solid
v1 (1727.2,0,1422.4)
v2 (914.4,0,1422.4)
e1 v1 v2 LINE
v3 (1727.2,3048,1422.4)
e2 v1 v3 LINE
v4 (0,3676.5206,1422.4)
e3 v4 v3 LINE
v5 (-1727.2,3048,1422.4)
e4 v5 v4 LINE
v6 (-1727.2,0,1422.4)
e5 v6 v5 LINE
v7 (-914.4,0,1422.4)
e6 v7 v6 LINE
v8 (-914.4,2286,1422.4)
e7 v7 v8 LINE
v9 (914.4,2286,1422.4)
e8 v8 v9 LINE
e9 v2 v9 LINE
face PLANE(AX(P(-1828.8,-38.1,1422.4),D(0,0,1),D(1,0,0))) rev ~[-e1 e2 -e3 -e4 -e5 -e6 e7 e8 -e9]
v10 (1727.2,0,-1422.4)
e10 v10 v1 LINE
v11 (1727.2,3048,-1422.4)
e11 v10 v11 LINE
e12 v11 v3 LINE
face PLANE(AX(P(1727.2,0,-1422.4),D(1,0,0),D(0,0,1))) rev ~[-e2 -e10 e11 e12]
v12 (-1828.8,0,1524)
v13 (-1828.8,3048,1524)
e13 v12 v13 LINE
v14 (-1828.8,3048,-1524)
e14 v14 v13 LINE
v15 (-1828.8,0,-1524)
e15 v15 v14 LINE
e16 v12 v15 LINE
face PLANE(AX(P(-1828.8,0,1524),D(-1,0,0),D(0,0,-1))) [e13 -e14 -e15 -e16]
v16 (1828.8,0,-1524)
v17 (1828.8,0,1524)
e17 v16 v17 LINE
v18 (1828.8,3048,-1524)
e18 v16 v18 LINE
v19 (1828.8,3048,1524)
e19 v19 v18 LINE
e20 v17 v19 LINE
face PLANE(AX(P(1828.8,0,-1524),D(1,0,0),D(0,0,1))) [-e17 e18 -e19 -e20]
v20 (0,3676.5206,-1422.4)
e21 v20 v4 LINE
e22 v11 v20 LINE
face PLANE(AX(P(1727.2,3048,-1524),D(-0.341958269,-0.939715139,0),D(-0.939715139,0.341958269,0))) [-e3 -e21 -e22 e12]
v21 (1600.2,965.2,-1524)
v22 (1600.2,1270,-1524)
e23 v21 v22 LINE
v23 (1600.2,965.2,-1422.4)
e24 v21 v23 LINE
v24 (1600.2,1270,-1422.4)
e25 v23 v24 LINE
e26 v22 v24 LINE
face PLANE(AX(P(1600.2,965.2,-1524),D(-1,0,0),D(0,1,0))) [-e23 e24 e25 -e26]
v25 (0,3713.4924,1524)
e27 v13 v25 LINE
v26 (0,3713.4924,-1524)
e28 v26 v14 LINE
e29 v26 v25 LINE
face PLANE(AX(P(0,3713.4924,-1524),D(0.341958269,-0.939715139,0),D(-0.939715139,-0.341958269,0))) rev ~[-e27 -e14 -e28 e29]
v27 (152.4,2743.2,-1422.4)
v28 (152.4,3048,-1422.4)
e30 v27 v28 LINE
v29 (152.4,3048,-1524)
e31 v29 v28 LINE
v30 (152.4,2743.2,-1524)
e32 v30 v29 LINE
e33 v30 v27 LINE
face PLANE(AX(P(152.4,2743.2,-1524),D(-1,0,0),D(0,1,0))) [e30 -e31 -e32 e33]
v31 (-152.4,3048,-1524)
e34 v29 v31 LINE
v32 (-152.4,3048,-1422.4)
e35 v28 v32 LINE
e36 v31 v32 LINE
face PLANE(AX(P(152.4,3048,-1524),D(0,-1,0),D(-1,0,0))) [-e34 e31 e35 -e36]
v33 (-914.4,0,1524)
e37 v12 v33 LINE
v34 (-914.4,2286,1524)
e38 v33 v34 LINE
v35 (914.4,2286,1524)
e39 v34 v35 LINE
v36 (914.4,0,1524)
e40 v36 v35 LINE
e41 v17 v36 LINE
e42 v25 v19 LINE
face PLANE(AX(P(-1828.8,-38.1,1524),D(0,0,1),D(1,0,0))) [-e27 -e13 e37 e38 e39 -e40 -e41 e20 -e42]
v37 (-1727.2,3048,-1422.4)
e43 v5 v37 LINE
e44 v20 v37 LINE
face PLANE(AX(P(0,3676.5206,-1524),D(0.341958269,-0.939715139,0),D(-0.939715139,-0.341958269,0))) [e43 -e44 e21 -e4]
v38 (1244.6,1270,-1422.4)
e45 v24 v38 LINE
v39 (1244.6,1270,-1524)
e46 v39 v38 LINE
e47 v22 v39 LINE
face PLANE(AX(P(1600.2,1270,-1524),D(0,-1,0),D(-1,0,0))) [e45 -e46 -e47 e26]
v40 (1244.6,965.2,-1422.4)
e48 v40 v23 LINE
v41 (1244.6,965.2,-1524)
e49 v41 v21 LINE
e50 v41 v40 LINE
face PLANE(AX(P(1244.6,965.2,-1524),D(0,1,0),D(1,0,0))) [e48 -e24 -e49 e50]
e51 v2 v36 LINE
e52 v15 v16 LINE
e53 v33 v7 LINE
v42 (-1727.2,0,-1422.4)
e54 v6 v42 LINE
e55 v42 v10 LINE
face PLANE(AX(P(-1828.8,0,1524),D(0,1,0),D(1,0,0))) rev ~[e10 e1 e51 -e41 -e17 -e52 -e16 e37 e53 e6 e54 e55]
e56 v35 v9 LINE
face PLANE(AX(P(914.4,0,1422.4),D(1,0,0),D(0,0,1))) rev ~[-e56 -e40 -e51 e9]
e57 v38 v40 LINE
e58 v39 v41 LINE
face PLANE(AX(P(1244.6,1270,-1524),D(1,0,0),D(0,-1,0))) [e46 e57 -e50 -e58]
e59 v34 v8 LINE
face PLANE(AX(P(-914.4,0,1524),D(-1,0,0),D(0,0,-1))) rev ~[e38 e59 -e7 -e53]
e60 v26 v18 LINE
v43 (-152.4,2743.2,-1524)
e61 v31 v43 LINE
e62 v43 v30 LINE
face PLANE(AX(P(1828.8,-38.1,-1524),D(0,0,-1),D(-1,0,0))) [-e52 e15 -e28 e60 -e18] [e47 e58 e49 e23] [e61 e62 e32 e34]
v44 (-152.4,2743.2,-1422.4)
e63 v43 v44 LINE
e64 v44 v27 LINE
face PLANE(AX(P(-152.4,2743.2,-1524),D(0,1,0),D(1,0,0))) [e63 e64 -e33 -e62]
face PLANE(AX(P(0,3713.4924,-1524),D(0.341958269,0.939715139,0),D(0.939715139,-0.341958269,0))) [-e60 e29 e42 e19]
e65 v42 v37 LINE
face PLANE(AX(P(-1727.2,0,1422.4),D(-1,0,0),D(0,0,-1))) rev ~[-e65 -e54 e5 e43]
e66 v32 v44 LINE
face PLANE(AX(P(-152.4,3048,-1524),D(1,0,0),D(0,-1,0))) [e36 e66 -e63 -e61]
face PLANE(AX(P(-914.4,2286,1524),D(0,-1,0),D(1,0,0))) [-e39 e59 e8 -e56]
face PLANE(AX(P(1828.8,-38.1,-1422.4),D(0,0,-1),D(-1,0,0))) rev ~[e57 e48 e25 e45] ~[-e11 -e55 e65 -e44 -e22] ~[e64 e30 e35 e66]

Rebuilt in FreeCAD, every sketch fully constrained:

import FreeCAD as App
import Part
import Sketcher
from FreeCAD import Vector
Q = App.Units.Quantity

doc = App.newDocument("Part")
params = doc.addObject("Spreadsheet::Sheet", "Params")
for row, (alias, value) in enumerate([
    ("sketch1_width", "36 in"),
    ("sketch1_height", "4 in"),
    ("sketch1_height2", "120 in"),
    ("pad1_length", "120 in"),
    ("sketch2_width", "72 in"),
    ("sketch2_height", "30 in"),
    ("pad2_length", "4 in"),
    ("sketch3_width", "144 in"),
    ("pad3_length", "4 in"),
    ("sketch4_width", "144 in"),
    ("pad4_length", "4 in"),
    ("sketch5_width", "4 in"),
    ("pad5_length", "120 in"),
    ("sketch6_width", "14 in"),
    ("sketch6_height", "12 in"),
    ("pocket1_length", "4 in"),
    ("sketch7_width", "12 in"),
    ("pocket2_length", "4 in"),
], start=1):
    params.set(f"A{row}", alias)
    params.set(f"B{row}", "=" + value)
    params.setAlias(f"B{row}", alias)

body = doc.addObject("PartDesign::Body", "Body")

# Sketch on XZ plane
sketch1 = doc.addObject("Sketcher::SketchObject", "Sketch")
body.addObject(sketch1)
sketch1.AttachmentSupport = (doc.XZ_Plane, [""])
sketch1.MapMode = "FlatFace"
sketch1.addGeometry([
    Part.LineSegment(Vector(-1829, -1524, 0), Vector(-1829, 1524, 0)),  # 0
    Part.LineSegment(Vector(-1829, 1524, 0), Vector(-914, 1524, 0)),  # 1
    Part.LineSegment(Vector(-914, 1524, 0), Vector(-914, 1422, 0)),  # 2
    Part.LineSegment(Vector(-914, 1422, 0), Vector(-1727, 1422, 0)),  # 3
    Part.LineSegment(Vector(-1727, 1422, 0), Vector(-1727, -1422, 0)),  # 4
    Part.LineSegment(Vector(-1727, -1422, 0), Vector(1727, -1422, 0)),  # 5
    Part.LineSegment(Vector(1727, -1422, 0), Vector(1727, 1422, 0)),  # 6
    Part.LineSegment(Vector(1727, 1422, 0), Vector(914, 1422, 0)),  # 7
    Part.LineSegment(Vector(914, 1422, 0), Vector(914, 1524, 0)),  # 8
    Part.LineSegment(Vector(914, 1524, 0), Vector(1829, 1524, 0)),  # 9
    Part.LineSegment(Vector(1829, 1524, 0), Vector(1829, -1524, 0)),  # 10
    Part.LineSegment(Vector(1829, -1524, 0), Vector(-1829, -1524, 0)),  # 11
], False)
sketch1.addConstraint([
    Sketcher.Constraint("Coincident", 0, 2, 1, 1),
    Sketcher.Constraint("Coincident", 1, 2, 2, 1),
    Sketcher.Constraint("Coincident", 2, 2, 3, 1),
    Sketcher.Constraint("Coincident", 3, 2, 4, 1),
    Sketcher.Constraint("Coincident", 4, 2, 5, 1),
    Sketcher.Constraint("Coincident", 5, 2, 6, 1),
    Sketcher.Constraint("Coincident", 6, 2, 7, 1),
    Sketcher.Constraint("Coincident", 7, 2, 8, 1),
    Sketcher.Constraint("Coincident", 8, 2, 9, 1),
    Sketcher.Constraint("Coincident", 9, 2, 10, 1),
    Sketcher.Constraint("Coincident", 10, 2, 11, 1),
    Sketcher.Constraint("Coincident", 11, 2, 0, 1),
    Sketcher.Constraint("Vertical", 0),
    Sketcher.Constraint("Horizontal", 1),
    Sketcher.Constraint("Vertical", 2),
    Sketcher.Constraint("Horizontal", 3),
    Sketcher.Constraint("Vertical", 4),
    Sketcher.Constraint("Horizontal", 5),
    Sketcher.Constraint("Vertical", 6),
    Sketcher.Constraint("Horizontal", 7),
    Sketcher.Constraint("Vertical", 8),
    Sketcher.Constraint("Horizontal", 9),
    Sketcher.Constraint("Vertical", 10),
    Sketcher.Constraint("Horizontal", 11),
    Sketcher.Constraint("Symmetric", 3, 2, 5, 2, -1, 1),
    Sketcher.Constraint("Symmetric", 0, 2, 10, 2, -1, 1),
    Sketcher.Constraint("Symmetric", 2, 2, 7, 2, -2),
    Sketcher.Constraint("Horizontal", 1, 2, 8, 2),
    Sketcher.Constraint("DistanceX", 1, 1, 1, 2, Q("36 in")),
    Sketcher.Constraint("DistanceY", 2, 2, 2, 1, Q("4 in")),
    Sketcher.Constraint("DistanceX", 1, 2, -1, 1, Q("36 in")),
    Sketcher.Constraint("DistanceX", 0, 2, 3, 2, Q("4 in")),
    Sketcher.Constraint("DistanceY", 0, 1, 0, 2, Q("120 in")),
])
sketch1.setExpression("Constraints[28]", "Params.sketch1_width")
sketch1.setExpression("Constraints[29]", "Params.sketch1_height")
sketch1.setExpression("Constraints[32]", "Params.sketch1_height2")
pad1 = doc.addObject("PartDesign::Pad", "Pad")
body.addObject(pad1)
pad1.Profile = sketch1
pad1.setExpression("Length", "Params.pad1_length")
pad1.Reversed = True

# Sketch on XY plane
sketch2 = doc.addObject("Sketcher::SketchObject", "Sketch001")
body.addObject(sketch2)
sketch2.AttachmentSupport = (doc.XY_Plane, [""])
sketch2.MapMode = "FlatFace"
sketch2.AttachmentOffset = App.Placement(Vector(0, 0, 60 * 25.4), App.Rotation())
sketch2.addGeometry([
    Part.LineSegment(Vector(-914, 3048, 0), Vector(-914, 2286, 0)),
    Part.LineSegment(Vector(-914, 2286, 0), Vector(914, 2286, 0)),
    Part.LineSegment(Vector(914, 2286, 0), Vector(914, 3048, 0)),
    Part.LineSegment(Vector(914, 3048, 0), Vector(-914, 3048, 0)),
], False)
sketch2.addConstraint([
    Sketcher.Constraint("Coincident", 0, 2, 1, 1),
    Sketcher.Constraint("Coincident", 1, 2, 2, 1),
    Sketcher.Constraint("Coincident", 2, 2, 3, 1),
    Sketcher.Constraint("Coincident", 3, 2, 0, 1),
    Sketcher.Constraint("Vertical", 0),
    Sketcher.Constraint("Horizontal", 1),
    Sketcher.Constraint("Vertical", 2),
    Sketcher.Constraint("Horizontal", 3),
    Sketcher.Constraint("DistanceY", -1, 1, 0, 2, Q("90 in")),
    Sketcher.Constraint("DistanceX", 1, 1, 1, 2, Q("72 in")),
    Sketcher.Constraint("DistanceY", 0, 2, 0, 1, Q("30 in")),
    Sketcher.Constraint("DistanceX", 0, 2, -1, 1, Q("36 in")),
])
sketch2.setExpression("Constraints[9]", "Params.sketch2_width")
sketch2.setExpression("Constraints[10]", "Params.sketch2_height")
pad2 = doc.addObject("PartDesign::Pad", "Pad001")
body.addObject(pad2)
pad2.Profile = sketch2
pad2.setExpression("Length", "Params.pad2_length")
pad2.Reversed = True

# Sketch on XY plane
sketch3 = doc.addObject("Sketcher::SketchObject", "Sketch002")
body.addObject(sketch3)
sketch3.AttachmentSupport = (doc.XY_Plane, [""])
sketch3.MapMode = "FlatFace"
sketch3.AttachmentOffset = App.Placement(Vector(0, 0, 60 * 25.4), App.Rotation())
sketch3.addGeometry([
    Part.LineSegment(Vector(-1829, 3048, 0), Vector(1829, 3048, 0)),
    Part.LineSegment(Vector(1829, 3048, 0), Vector(0, 3713, 0)),
    Part.LineSegment(Vector(0, 3713, 0), Vector(-1829, 3048, 0)),
], False)
sketch3.addConstraint([
    Sketcher.Constraint("Coincident", 0, 2, 1, 1),
    Sketcher.Constraint("Coincident", 1, 2, 2, 1),
    Sketcher.Constraint("Coincident", 2, 2, 0, 1),
    Sketcher.Constraint("Horizontal", 0),
    Sketcher.Constraint("PointOnObject", 1, 2, -2),
    Sketcher.Constraint("Equal", 1, 2),
    Sketcher.Constraint("DistanceX", 0, 1, 0, 2, Q("144 in")),
    Sketcher.Constraint("DistanceY", -1, 1, 0, 2, Q("120 in")),
    Sketcher.Constraint("DistanceY", -1, 1, 1, 2, Q("146.2005 in")),
])
sketch3.setExpression("Constraints[6]", "Params.sketch3_width")
pad3 = doc.addObject("PartDesign::Pad", "Pad002")
body.addObject(pad3)
pad3.Profile = sketch3
pad3.setExpression("Length", "Params.pad3_length")
pad3.Reversed = True

# Sketch on XY plane
sketch4 = doc.addObject("Sketcher::SketchObject", "Sketch003")
body.addObject(sketch4)
sketch4.AttachmentSupport = (doc.XY_Plane, [""])
sketch4.MapMode = "FlatFace"
sketch4.AttachmentOffset = App.Placement(Vector(0, 0, -60 * 25.4), App.Rotation())
sketch4.addGeometry([
    Part.LineSegment(Vector(1829, 3048, 0), Vector(-1829, 3048, 0)),
    Part.LineSegment(Vector(-1829, 3048, 0), Vector(0, 3713, 0)),
    Part.LineSegment(Vector(0, 3713, 0), Vector(1829, 3048, 0)),
], False)
sketch4.addConstraint([
    Sketcher.Constraint("Coincident", 0, 2, 1, 1),
    Sketcher.Constraint("Coincident", 1, 2, 2, 1),
    Sketcher.Constraint("Coincident", 2, 2, 0, 1),
    Sketcher.Constraint("Horizontal", 0),
    Sketcher.Constraint("PointOnObject", 1, 2, -2),
    Sketcher.Constraint("Equal", 1, 2),
    Sketcher.Constraint("DistanceX", 0, 2, 0, 1, Q("144 in")),
    Sketcher.Constraint("DistanceY", -1, 1, 0, 2, Q("120 in")),
    Sketcher.Constraint("DistanceY", -1, 1, 1, 2, Q("146.2005 in")),
])
sketch4.setExpression("Constraints[6]", "Params.sketch4_width")
pad4 = doc.addObject("PartDesign::Pad", "Pad003")
body.addObject(pad4)
pad4.Profile = sketch4
pad4.setExpression("Length", "Params.pad4_length")

# Sketch on XY plane
sketch5 = doc.addObject("Sketcher::SketchObject", "Sketch004")
body.addObject(sketch5)
sketch5.AttachmentSupport = (doc.XY_Plane, [""])
sketch5.MapMode = "FlatFace"
sketch5.AttachmentOffset = App.Placement(Vector(0, 0, -60 * 25.4), App.Rotation())
sketch5.addGeometry([
    Part.LineSegment(Vector(0, 3713, 0), Vector(1829, 3048, 0)),  # 0
    Part.LineSegment(Vector(1829, 3048, 0), Vector(1727, 3048, 0)),  # 1
    Part.LineSegment(Vector(1727, 3048, 0), Vector(0, 3677, 0)),  # 2
    Part.LineSegment(Vector(0, 3677, 0), Vector(-1727, 3048, 0)),  # 3
    Part.LineSegment(Vector(-1727, 3048, 0), Vector(-1829, 3048, 0)),  # 4
    Part.LineSegment(Vector(-1829, 3048, 0), Vector(0, 3713, 0)),  # 5
], False)
sketch5.addConstraint([
    Sketcher.Constraint("Coincident", 0, 2, 1, 1),
    Sketcher.Constraint("Coincident", 1, 2, 2, 1),
    Sketcher.Constraint("Coincident", 2, 2, 3, 1),
    Sketcher.Constraint("Coincident", 3, 2, 4, 1),
    Sketcher.Constraint("Coincident", 4, 2, 5, 1),
    Sketcher.Constraint("Coincident", 5, 2, 0, 1),
    Sketcher.Constraint("Horizontal", 1),
    Sketcher.Constraint("Horizontal", 4),
    Sketcher.Constraint("Symmetric", 1, 2, 3, 2, -2),
    Sketcher.Constraint("PointOnObject", 2, 2, -2),
    Sketcher.Constraint("PointOnObject", 5, 2, -2),
    Sketcher.Constraint("Parallel", 0, 2),
    Sketcher.Constraint("Parallel", 3, 5),
    Sketcher.Constraint("DistanceX", 1, 2, 1, 1, Q("4 in")),
    Sketcher.Constraint("DistanceX", -1, 1, 0, 2, Q("72 in")),
    Sketcher.Constraint("DistanceY", -1, 1, 0, 2, Q("120 in")),
    Sketcher.Constraint("DistanceY", -1, 1, 2, 2, Q("144.7449 in")),
])
sketch5.setExpression("Constraints[13]", "Params.sketch5_width")
pad5 = doc.addObject("PartDesign::Pad", "Pad004")
body.addObject(pad5)
pad5.Profile = sketch5
pad5.setExpression("Length", "Params.pad5_length")

# Sketch on XY plane
sketch6 = doc.addObject("Sketcher::SketchObject", "Sketch005")
body.addObject(sketch6)
sketch6.AttachmentSupport = (doc.XY_Plane, [""])
sketch6.MapMode = "FlatFace"
sketch6.AttachmentOffset = App.Placement(Vector(0, 0, -60 * 25.4), App.Rotation())
sketch6.addGeometry([
    Part.LineSegment(Vector(1245, 1270, 0), Vector(1600, 1270, 0)),
    Part.LineSegment(Vector(1600, 1270, 0), Vector(1600, 965, 0)),
    Part.LineSegment(Vector(1600, 965, 0), Vector(1245, 965, 0)),
    Part.LineSegment(Vector(1245, 965, 0), Vector(1245, 1270, 0)),
], False)
sketch6.addConstraint([
    Sketcher.Constraint("Coincident", 0, 2, 1, 1),
    Sketcher.Constraint("Coincident", 1, 2, 2, 1),
    Sketcher.Constraint("Coincident", 2, 2, 3, 1),
    Sketcher.Constraint("Coincident", 3, 2, 0, 1),
    Sketcher.Constraint("Horizontal", 0),
    Sketcher.Constraint("Vertical", 1),
    Sketcher.Constraint("Horizontal", 2),
    Sketcher.Constraint("Vertical", 3),
    Sketcher.Constraint("DistanceX", 0, 1, 0, 2, Q("14 in")),
    Sketcher.Constraint("DistanceY", 1, 2, 1, 1, Q("12 in")),
    Sketcher.Constraint("DistanceY", -1, 1, 1, 2, Q("38 in")),
    Sketcher.Constraint("DistanceX", -1, 1, 0, 2, Q("63 in")),
])
sketch6.setExpression("Constraints[8]", "Params.sketch6_width")
sketch6.setExpression("Constraints[9]", "Params.sketch6_height")
pocket1 = doc.addObject("PartDesign::Pocket", "Pocket")
body.addObject(pocket1)
pocket1.Profile = sketch6
pocket1.setExpression("Length", "Params.pocket1_length")
pocket1.Reversed = True

# Sketch on XY plane
sketch7 = doc.addObject("Sketcher::SketchObject", "Sketch006")
body.addObject(sketch7)
sketch7.AttachmentSupport = (doc.XY_Plane, [""])
sketch7.MapMode = "FlatFace"
sketch7.AttachmentOffset = App.Placement(Vector(0, 0, -60 * 25.4), App.Rotation())
sketch7.addGeometry([
    Part.LineSegment(Vector(-152, 3048, 0), Vector(152, 3048, 0)),
    Part.LineSegment(Vector(152, 3048, 0), Vector(152, 2743, 0)),
    Part.LineSegment(Vector(152, 2743, 0), Vector(-152, 2743, 0)),
    Part.LineSegment(Vector(-152, 2743, 0), Vector(-152, 3048, 0)),
], False)
sketch7.addConstraint([
    Sketcher.Constraint("Coincident", 0, 2, 1, 1),
    Sketcher.Constraint("Coincident", 1, 2, 2, 1),
    Sketcher.Constraint("Coincident", 2, 2, 3, 1),
    Sketcher.Constraint("Coincident", 3, 2, 0, 1),
    Sketcher.Constraint("Horizontal", 0),
    Sketcher.Constraint("Vertical", 1),
    Sketcher.Constraint("Horizontal", 2),
    Sketcher.Constraint("Vertical", 3),
    Sketcher.Constraint("Equal", 2, 1),
    Sketcher.Constraint("DistanceX", 0, 1, 0, 2, Q("12 in")),
    Sketcher.Constraint("DistanceX", -1, 1, 0, 2, Q("6 in")),
    Sketcher.Constraint("DistanceY", -1, 1, 0, 2, Q("120 in")),
])
sketch7.setExpression("Constraints[9]", "Params.sketch7_width")
pocket2 = doc.addObject("PartDesign::Pocket", "Pocket001")
body.addObject(pocket2)
pocket2.Profile = sketch7
pocket2.setExpression("Length", "Params.pocket2_length")
pocket2.Reversed = True

doc.recompute()
